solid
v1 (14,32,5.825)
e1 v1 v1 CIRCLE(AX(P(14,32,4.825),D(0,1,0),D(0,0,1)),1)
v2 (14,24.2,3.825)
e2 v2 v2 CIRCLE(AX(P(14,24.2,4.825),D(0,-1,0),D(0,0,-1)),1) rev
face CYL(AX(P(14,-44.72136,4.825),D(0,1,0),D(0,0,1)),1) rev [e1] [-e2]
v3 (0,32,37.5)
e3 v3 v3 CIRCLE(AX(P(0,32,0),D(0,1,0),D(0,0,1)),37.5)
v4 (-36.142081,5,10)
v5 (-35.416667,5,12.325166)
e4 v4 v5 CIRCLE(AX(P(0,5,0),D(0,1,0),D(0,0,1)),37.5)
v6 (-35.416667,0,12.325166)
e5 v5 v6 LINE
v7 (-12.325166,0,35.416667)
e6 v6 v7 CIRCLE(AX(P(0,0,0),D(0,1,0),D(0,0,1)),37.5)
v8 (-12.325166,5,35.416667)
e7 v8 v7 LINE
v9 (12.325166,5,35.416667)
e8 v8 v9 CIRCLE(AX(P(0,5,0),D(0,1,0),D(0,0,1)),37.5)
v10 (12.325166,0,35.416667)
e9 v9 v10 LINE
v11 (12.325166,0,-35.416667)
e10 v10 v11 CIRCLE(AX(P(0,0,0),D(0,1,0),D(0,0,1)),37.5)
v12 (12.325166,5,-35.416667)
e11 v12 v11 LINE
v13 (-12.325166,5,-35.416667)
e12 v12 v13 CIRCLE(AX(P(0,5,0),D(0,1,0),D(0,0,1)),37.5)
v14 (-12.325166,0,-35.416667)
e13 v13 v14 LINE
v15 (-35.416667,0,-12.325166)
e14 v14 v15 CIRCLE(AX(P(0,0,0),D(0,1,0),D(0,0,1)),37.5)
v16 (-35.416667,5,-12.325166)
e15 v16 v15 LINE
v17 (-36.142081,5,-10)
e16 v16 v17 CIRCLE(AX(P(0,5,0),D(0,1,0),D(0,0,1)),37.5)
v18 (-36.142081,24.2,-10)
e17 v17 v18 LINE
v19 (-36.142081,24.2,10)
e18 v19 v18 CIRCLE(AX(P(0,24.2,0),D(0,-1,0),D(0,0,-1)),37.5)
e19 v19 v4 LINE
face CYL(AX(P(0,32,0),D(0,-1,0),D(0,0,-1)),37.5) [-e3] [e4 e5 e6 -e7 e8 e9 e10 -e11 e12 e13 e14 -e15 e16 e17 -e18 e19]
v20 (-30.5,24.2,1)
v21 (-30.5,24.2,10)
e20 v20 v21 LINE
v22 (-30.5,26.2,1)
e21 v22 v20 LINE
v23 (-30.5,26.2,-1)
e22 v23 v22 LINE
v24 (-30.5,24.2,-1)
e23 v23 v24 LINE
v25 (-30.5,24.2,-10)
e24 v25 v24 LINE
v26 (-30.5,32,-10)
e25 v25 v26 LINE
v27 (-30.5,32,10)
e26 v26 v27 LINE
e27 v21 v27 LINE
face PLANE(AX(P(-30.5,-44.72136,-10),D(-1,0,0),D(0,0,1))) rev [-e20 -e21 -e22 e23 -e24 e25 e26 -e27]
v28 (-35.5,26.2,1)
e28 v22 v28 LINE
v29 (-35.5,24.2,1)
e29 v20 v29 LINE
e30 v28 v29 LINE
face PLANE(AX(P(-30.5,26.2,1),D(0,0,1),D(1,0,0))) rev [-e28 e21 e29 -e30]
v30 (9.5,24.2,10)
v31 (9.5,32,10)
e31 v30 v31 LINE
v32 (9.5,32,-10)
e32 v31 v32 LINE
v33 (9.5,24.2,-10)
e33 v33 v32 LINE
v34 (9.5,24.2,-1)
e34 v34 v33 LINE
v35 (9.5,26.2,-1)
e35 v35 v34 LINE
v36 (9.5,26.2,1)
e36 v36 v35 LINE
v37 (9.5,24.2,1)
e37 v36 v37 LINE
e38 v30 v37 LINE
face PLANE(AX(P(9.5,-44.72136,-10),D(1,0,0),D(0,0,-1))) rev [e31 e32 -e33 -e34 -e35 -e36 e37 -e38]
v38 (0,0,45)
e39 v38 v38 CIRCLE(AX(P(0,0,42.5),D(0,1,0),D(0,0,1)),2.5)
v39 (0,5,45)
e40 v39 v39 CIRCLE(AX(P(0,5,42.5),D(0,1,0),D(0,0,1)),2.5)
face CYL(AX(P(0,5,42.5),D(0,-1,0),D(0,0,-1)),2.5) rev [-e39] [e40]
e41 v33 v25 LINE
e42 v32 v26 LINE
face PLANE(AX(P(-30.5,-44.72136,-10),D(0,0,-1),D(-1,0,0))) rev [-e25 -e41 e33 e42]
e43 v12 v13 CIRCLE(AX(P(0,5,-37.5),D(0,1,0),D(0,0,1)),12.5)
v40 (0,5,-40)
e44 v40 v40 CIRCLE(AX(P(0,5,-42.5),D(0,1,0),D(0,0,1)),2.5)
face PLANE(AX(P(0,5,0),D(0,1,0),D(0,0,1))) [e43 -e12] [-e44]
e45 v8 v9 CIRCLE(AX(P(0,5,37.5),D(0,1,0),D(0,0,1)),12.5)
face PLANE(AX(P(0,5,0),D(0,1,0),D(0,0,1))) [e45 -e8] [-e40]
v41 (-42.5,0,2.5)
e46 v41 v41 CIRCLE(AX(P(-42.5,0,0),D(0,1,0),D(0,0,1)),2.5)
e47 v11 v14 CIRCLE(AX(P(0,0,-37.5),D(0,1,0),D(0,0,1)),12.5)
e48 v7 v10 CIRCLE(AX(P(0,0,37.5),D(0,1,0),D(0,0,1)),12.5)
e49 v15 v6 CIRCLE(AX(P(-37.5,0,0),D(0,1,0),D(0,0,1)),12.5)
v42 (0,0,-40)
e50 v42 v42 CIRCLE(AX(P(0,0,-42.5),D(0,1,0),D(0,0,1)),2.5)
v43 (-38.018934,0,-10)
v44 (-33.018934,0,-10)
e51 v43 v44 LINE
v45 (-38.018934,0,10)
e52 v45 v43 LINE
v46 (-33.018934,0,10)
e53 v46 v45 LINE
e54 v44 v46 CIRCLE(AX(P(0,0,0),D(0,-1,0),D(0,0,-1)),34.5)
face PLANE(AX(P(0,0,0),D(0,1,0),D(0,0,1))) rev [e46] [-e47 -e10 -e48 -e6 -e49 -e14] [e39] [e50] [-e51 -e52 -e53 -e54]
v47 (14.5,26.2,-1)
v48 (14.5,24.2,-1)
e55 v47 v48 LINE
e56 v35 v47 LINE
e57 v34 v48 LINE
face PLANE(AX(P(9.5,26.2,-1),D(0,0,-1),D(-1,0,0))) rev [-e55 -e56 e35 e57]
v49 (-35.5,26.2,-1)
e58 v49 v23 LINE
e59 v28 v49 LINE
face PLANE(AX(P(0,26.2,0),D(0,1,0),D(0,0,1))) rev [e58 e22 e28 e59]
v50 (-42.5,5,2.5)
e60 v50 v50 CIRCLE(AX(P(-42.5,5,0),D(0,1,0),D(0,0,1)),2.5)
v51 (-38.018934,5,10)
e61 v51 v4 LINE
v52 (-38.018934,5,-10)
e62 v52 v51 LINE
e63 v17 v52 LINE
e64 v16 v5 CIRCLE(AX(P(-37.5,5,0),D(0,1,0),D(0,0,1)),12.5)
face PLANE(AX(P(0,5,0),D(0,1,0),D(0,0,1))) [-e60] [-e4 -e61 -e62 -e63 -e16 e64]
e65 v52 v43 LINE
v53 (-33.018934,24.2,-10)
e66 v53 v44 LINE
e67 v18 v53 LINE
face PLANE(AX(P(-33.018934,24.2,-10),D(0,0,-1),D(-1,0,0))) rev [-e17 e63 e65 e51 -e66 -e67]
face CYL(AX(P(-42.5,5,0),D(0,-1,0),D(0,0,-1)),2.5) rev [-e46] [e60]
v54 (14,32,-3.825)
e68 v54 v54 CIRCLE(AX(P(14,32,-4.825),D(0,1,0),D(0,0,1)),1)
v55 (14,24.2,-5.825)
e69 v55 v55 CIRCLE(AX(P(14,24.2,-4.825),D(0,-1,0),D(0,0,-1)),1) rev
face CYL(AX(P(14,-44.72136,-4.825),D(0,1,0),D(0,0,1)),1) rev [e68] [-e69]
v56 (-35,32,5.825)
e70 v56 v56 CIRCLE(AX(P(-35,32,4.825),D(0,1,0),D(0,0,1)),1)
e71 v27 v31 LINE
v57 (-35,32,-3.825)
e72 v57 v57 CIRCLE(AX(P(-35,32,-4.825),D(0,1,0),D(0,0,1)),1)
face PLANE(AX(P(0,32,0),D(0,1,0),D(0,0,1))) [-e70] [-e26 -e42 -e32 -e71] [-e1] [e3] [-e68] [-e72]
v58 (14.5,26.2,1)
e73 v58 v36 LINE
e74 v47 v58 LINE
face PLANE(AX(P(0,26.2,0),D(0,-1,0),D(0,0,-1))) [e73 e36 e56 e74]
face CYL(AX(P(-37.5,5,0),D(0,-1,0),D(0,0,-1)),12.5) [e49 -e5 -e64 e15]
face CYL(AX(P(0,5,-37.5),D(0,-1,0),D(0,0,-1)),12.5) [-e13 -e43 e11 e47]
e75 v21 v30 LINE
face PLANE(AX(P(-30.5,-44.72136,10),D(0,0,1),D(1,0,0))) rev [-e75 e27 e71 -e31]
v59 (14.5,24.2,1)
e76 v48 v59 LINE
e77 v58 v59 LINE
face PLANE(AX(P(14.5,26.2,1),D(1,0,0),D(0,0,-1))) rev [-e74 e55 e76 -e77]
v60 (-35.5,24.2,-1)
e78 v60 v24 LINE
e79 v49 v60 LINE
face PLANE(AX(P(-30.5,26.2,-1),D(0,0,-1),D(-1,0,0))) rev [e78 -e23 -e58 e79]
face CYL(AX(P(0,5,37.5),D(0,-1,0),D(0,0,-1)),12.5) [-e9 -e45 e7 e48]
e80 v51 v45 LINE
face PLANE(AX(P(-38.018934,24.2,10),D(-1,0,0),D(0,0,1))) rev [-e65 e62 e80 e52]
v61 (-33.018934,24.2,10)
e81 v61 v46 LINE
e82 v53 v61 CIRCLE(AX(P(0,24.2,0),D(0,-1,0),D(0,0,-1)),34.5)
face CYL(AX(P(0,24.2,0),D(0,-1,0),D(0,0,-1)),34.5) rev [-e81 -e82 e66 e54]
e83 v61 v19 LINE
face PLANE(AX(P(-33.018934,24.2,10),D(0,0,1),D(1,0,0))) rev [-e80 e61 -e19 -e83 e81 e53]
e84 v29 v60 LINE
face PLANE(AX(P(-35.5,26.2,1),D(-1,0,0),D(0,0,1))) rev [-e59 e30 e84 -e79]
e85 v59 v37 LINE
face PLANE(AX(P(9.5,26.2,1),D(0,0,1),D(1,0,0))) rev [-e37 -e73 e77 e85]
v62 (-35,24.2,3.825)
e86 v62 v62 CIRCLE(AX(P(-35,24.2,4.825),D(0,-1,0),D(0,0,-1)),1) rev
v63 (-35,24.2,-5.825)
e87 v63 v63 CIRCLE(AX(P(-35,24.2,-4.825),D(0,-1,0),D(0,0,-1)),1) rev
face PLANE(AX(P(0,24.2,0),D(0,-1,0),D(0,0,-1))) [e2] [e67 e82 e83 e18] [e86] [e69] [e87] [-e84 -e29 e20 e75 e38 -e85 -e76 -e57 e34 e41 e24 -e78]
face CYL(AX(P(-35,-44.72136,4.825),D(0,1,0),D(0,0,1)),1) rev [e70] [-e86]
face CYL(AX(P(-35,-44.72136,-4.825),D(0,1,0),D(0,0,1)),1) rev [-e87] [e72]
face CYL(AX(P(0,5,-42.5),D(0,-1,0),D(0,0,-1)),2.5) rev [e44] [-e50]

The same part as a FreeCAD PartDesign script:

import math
import FreeCAD as App
import Part
import Sketcher
from FreeCAD import Vector

doc = App.newDocument("Part")
body = doc.addObject("PartDesign::Body", "Body")

# Sketch on XZ plane
sketch1 = body.newObject("Sketcher::SketchObject", "Sketch")
sketch1.AttachmentSupport = (doc.getObject("XZ_Plane"), [""])
sketch1.MapMode = "FlatFace"
sketch1.addGeometry([
    Part.ArcOfCircle(Part.Circle(Vector(0, 0, 0), Vector(0, 0, 1), 37.5), math.radians(161), math.radians(199)),  # 0
    Part.ArcOfCircle(Part.Circle(Vector(0, 0, 0), Vector(0, 0, 1), 37.5), math.radians(109), math.radians(161)),  # 1
    Part.ArcOfCircle(Part.Circle(Vector(0, 0, 0), Vector(0, 0, 1), 37.5), math.radians(71), math.radians(109)),  # 2
    Part.ArcOfCircle(Part.Circle(Vector(0, 0, 0), Vector(0, 0, 1), 37.5), math.radians(19), math.radians(71)),  # 3
    Part.ArcOfCircle(Part.Circle(Vector(0, 0, 0), Vector(0, 0, 1), 37.5), math.radians(0), math.radians(19.19)),  # 4
    Part.ArcOfCircle(Part.Circle(Vector(0, 0, 0), Vector(0, 0, 1), 37.5), math.radians(-19.19), math.radians(0)),  # 5
    Part.ArcOfCircle(Part.Circle(Vector(0, 0, 0), Vector(0, 0, 1), 37.5), math.radians(-71), math.radians(-19)),  # 6
    Part.ArcOfCircle(Part.Circle(Vector(0, 0, 0), Vector(0, 0, 1), 37.5), math.radians(-109), math.radians(-71)),  # 7
    Part.ArcOfCircle(Part.Circle(Vector(0, 0, 0), Vector(0, 0, 1), 37.5), math.radians(-161), math.radians(-109)),  # 8
    Part.Circle(Vector(0, 0, 0), Vector(0, 0, 1), 2.5),  # 9
], False)
sketch1.addConstraint([
    Sketcher.Constraint("Tangent", 0, 1, 1, 2),
    Sketcher.Constraint("Tangent", 1, 1, 2, 2),
    Sketcher.Constraint("Tangent", 2, 1, 3, 2),
    Sketcher.Constraint("Tangent", 3, 1, 4, 2),
    Sketcher.Constraint("Tangent", 4, 1, 5, 2),
    Sketcher.Constraint("Tangent", 5, 1, 6, 2),
    Sketcher.Constraint("Tangent", 6, 1, 7, 2),
    Sketcher.Constraint("Tangent", 7, 1, 8, 2),
    Sketcher.Constraint("Tangent", 8, 1, 0, 2),
    Sketcher.Constraint("Coincident", 0, 3, -1, 1),
    Sketcher.Constraint("Coincident", 2, 3, -1, 1),
    Sketcher.Constraint("Coincident", 4, 3, -1, 1),
    Sketcher.Constraint("Coincident", 6, 3, -1, 1),
    Sketcher.Constraint("Coincident", 9, 3, -1, 1),
    Sketcher.Constraint("PointOnObject", 4, 1, -1),
    Sketcher.Constraint("Horizontal", 1, 1, 2, 1),
    Sketcher.Constraint("Horizontal", 0, 1, 3, 1),
    Sketcher.Constraint("Horizontal", 6, 1, 7, 1),
    Sketcher.Constraint("Horizontal", 5, 1, 8, 1),
    Sketcher.Constraint("Vertical", 3, 1, 5, 1),
    Sketcher.Constraint("Vertical", 2, 1, 6, 1),
    Sketcher.Constraint("Diameter", 9, 5.0),
    Sketcher.Constraint("Radius", 0, 37.5),
    Sketcher.Constraint("DistanceX", 0, 1, 1, 1, 23.0915),
    Sketcher.Constraint("DistanceY", 0, 1, 1, 1, 23.0915),
])
pad1 = body.newObject("PartDesign::Pad", "Pad")
pad1.Profile = sketch1
pad1.Length = 32
pad1.Reversed = True

# Sketch on XZ plane
sketch2 = body.newObject("Sketcher::SketchObject", "Sketch001")
sketch2.AttachmentSupport = (doc.getObject("XZ_Plane"), [""])
sketch2.MapMode = "FlatFace"
sketch2.addGeometry([
    Part.ArcOfCircle(Part.Circle(Vector(-37.5, 0, 0), Vector(0, 0, 1), 12.5), math.radians(80), math.radians(280)),  # 0
    Part.ArcOfCircle(Part.Circle(Vector(0, 0, 0), Vector(0, 0, 1), 37.5), math.radians(161), math.radians(199)),  # 1
    Part.Circle(Vector(-42.5, 0, 0), Vector(0, 0, 1), 2.5),  # 2
    Part.ArcOfCircle(Part.Circle(Vector(0, 0, 0), Vector(0, 0, 1), 37.5), math.radians(71), math.radians(109)),  # 3
    Part.ArcOfCircle(Part.Circle(Vector(0, 37.5, 0), Vector(0, 0, 1), 12.5), math.radians(-10), math.radians(190)),  # 4
    Part.Circle(Vector(0, 42.5, 0), Vector(0, 0, 1), 2.5),  # 5
    Part.ArcOfCircle(Part.Circle(Vector(0, -37.5, 0), Vector(0, 0, 1), 12.5), math.radians(170), math.radians(370)),  # 6
    Part.ArcOfCircle(Part.Circle(Vector(0, 0, 0), Vector(0, 0, 1), 37.5), math.radians(-109), math.radians(-71)),  # 7
    Part.Circle(Vector(0, -42.5, 0), Vector(0, 0, 1), 2.5),  # 8
], False)
sketch2.addConstraint([
    Sketcher.Constraint("Coincident", 0, 1, 1, 1),
    Sketcher.Constraint("Coincident", 1, 2, 0, 2),
    Sketcher.Constraint("Coincident", 3, 1, 4, 1),
    Sketcher.Constraint("Coincident", 4, 2, 3, 2),
    Sketcher.Constraint("Coincident", 6, 1, 7, 1),
    Sketcher.Constraint("Coincident", 7, 2, 6, 2),
    Sketcher.Constraint("Coincident", 1, 3, -1, 1),
    Sketcher.Constraint("Coincident", 3, 3, -1, 1),
    Sketcher.Constraint("Coincident", 7, 3, -1, 1),
    Sketcher.Constraint("Equal", 1, 3),
    Sketcher.Constraint("Equal", 0, 4),
    Sketcher.Constraint("Equal", 2, 5),
    Sketcher.Constraint("Equal", 4, 6),
    Sketcher.Constraint("Equal", 3, 7),
    Sketcher.Constraint("Equal", 5, 8),
    Sketcher.Constraint("Symmetric", 4, 3, 6, 3, -1, 1),
    Sketcher.Constraint("Symmetric", 5, 3, 8, 3, -1, 1),
    Sketcher.Constraint("PointOnObject", 0, 3, -1),
    Sketcher.Constraint("PointOnObject", 2, 3, -1),
    Sketcher.Constraint("PointOnObject", 4, 3, -2),
    Sketcher.Constraint("PointOnObject", 5, 3, -2),
    Sketcher.Constraint("Diameter", 2, 5.0),
    Sketcher.Constraint("Radius", 0, 12.5),
    Sketcher.Constraint("Radius", 1, 37.5),
    Sketcher.Constraint("DistanceX", 2, 3, 0, 3, 5.0),
    Sketcher.Constraint("DistanceY", 4, 3, 5, 3, 5.0),
    Sketcher.Constraint("DistanceY", 6, 3, 4, 3, 75.0),
    Sketcher.Constraint("DistanceX", 0, 3, -1, 1, 37.5),
])
pad2 = body.newObject("PartDesign::Pad", "Pad001")
pad2.Profile = sketch2
pad2.Length = 5
pad2.Reversed = True

# Sketch on XZ plane
sketch3 = body.newObject("Sketcher::SketchObject", "Sketch002")
sketch3.AttachmentSupport = (doc.getObject("XZ_Plane"), [""])
sketch3.MapMode = "FlatFace"
sketch3.addGeometry([
    Part.Circle(Vector(-35, -4.8, 0), Vector(0, 0, 1), 1),  # 0
    Part.Circle(Vector(-35, 4.8, 0), Vector(0, 0, 1), 1),  # 1
    Part.Circle(Vector(14, -4.8, 0), Vector(0, 0, 1), 1),  # 2
    Part.Circle(Vector(14, 4.8, 0), Vector(0, 0, 1), 1),  # 3
    Part.LineSegment(Vector(-30.5, -10, 0), Vector(-30.5, 10, 0)),  # 4
    Part.LineSegment(Vector(-30.5, 10, 0), Vector(9.5, 10, 0)),  # 5
    Part.LineSegment(Vector(9.5, 10, 0), Vector(9.5, -10, 0)),  # 6
    Part.LineSegment(Vector(9.5, -10, 0), Vector(-30.5, -10, 0)),  # 7
    Part.Circle(Vector(0, 0, 0), Vector(0, 0, 1), 2.5),  # 8
], False)
sketch3.addConstraint([
    Sketcher.Constraint("Coincident", 4, 2, 5, 1),
    Sketcher.Constraint("Coincident", 5, 2, 6, 1),
    Sketcher.Constraint("Coincident", 6, 2, 7, 1),
    Sketcher.Constraint("Coincident", 7, 2, 4, 1),
    Sketcher.Constraint("Vertical", 4),
    Sketcher.Constraint("Horizontal", 5),
    Sketcher.Constraint("Vertical", 6),
    Sketcher.Constraint("Horizontal", 7),
    Sketcher.Constraint("Coincident", 8, 3, -1, 1),
    Sketcher.Constraint("Equal", 0, 1),
    Sketcher.Constraint("Equal", 1, 2),
    Sketcher.Constraint("Equal", 2, 3),
    Sketcher.Constraint("Symmetric", 0, 3, 1, 3, -1),
    Sketcher.Constraint("Symmetric", 2, 3, 3, 3, -1),
    Sketcher.Constraint("Horizontal", 0, 3, 2, 3),
    Sketcher.Constraint("Diameter", 0, 2.0),
    Sketcher.Constraint("Diameter", 8, 5.0),
    Sketcher.Constraint("DistanceX", 5, 1, 5, 2, 40.0),
    Sketcher.Constraint("DistanceY", 4, 1, 4, 2, 20.0),
    Sketcher.Constraint("DistanceX", 0, 3, -1, 1, 35.0),
    Sketcher.Constraint("DistanceX", -1, 1, 2, 3, 14.0),
    Sketcher.Constraint("DistanceY", -1, 1, 4, 2, 10.0),
    Sketcher.Constraint("DistanceX", 4, 2, -1, 1, 30.5),
    Sketcher.Constraint("DistanceY", 0, 3, 1, 3, 9.65),
])
pocket1 = body.newObject("PartDesign::Pocket", "Pocket")
pocket1.Profile = sketch3
pocket1.Length = 32

# Sketch on XZ plane
sketch4 = body.newObject("Sketcher::SketchObject", "Sketch003")
sketch4.AttachmentSupport = (doc.getObject("XZ_Plane"), [""])
sketch4.MapMode = "FlatFace"
sketch4.addGeometry([
    Part.LineSegment(Vector(-33, 10, 0), Vector(-38, 10, 0)),
    Part.LineSegment(Vector(-38, 10, 0), Vector(-38, -10, 0)),
    Part.LineSegment(Vector(-38, -10, 0), Vector(-33, -10, 0)),
    Part.ArcOfCircle(Part.Circle(Vector(0, 0, 0), Vector(0, 0, 1), 34), math.radians(-163), math.radians(163)),
], False)
sketch4.addConstraint([
    Sketcher.Constraint("Coincident", 0, 2, 1, 1),
    Sketcher.Constraint("Coincident", 1, 2, 2, 1),
    Sketcher.Constraint("Coincident", 2, 2, 3, 1),
    Sketcher.Constraint("Coincident", 3, 2, 0, 1),
    Sketcher.Constraint("Horizontal", 0),
    Sketcher.Constraint("Vertical", 1),
    Sketcher.Constraint("Horizontal", 2),
    Sketcher.Constraint("Coincident", 3, 3, -1, 1),
    Sketcher.Constraint("Vertical", 2, 2, 3, 2),
    Sketcher.Constraint("Radius", 3, 34.5),
    Sketcher.Constraint("DistanceX", 0, 2, 0, 1, 5.0),
    Sketcher.Constraint("DistanceY", 1, 2, 1, 1, 20.0),
])
pocket2 = body.newObject("PartDesign::Pocket", "Pocket001")
pocket2.Profile = sketch4
pocket2.Length = 24.2

# Sketch on XZ plane
sketch5 = body.newObject("Sketcher::SketchObject", "Sketch004")
sketch5.AttachmentSupport = (doc.getObject("XZ_Plane"), [""])
sketch5.MapMode = "FlatFace"
sketch5.AttachmentOffset = App.Placement(Vector(0, 0, -24.2), App.Rotation())
sketch5.addGeometry([
    Part.LineSegment(Vector(14.5, -1, 0), Vector(14.5, 1, 0)),  # 0
    Part.LineSegment(Vector(14.5, 1, 0), Vector(9.5, 1, 0)),  # 1
    Part.LineSegment(Vector(9.5, 1, 0), Vector(9.5, -1, 0)),  # 2
    Part.LineSegment(Vector(9.5, -1, 0), Vector(14.5, -1, 0)),  # 3
    Part.LineSegment(Vector(-30.5, -1, 0), Vector(-30.5, 1, 0)),  # 4
    Part.LineSegment(Vector(-30.5, 1, 0), Vector(-35.5, 1, 0)),  # 5
    Part.LineSegment(Vector(-35.5, 1, 0), Vector(-35.5, -1, 0)),  # 6
    Part.LineSegment(Vector(-35.5, -1, 0), Vector(-30.5, -1, 0)),  # 7
], False)
sketch5.addConstraint([
    Sketcher.Constraint("Coincident", 0, 2, 1, 1),
    Sketcher.Constraint("Coincident", 1, 2, 2, 1),
    Sketcher.Constraint("Coincident", 2, 2, 3, 1),
    Sketcher.Constraint("Coincident", 3, 2, 0, 1),
    Sketcher.Constraint("Coincident", 4, 2, 5, 1),
    Sketcher.Constraint("Coincident", 5, 2, 6, 1),
    Sketcher.Constraint("Coincident", 6, 2, 7, 1),
    Sketcher.Constraint("Coincident", 7, 2, 4, 1),
    Sketcher.Constraint("Vertical", 0),
    Sketcher.Constraint("Horizontal", 1),
    Sketcher.Constraint("Vertical", 2),
    Sketcher.Constraint("Horizontal", 3),
    Sketcher.Constraint("Vertical", 4),
    Sketcher.Constraint("Horizontal", 5),
    Sketcher.Constraint("Vertical", 6),
    Sketcher.Constraint("Horizontal", 7),
    Sketcher.Constraint("Horizontal", 1, 2, 4, 2),
    Sketcher.Constraint("Horizontal", 3, 2, 6, 2),
    Sketcher.Constraint("Equal", 3, 5),
    Sketcher.Constraint("DistanceX", 1, 2, 1, 1, 5.0),
    Sketcher.Constraint("DistanceY", 0, 1, 0, 2, 2.0),
    Sketcher.Constraint("DistanceY", -1, 1, 0, 2, 1.0),
    Sketcher.Constraint("DistanceX", 4, 2, 1, 2, 40.0),
    Sketcher.Constraint("DistanceX", -1, 1, 0, 2, 14.5),
])
pocket3 = body.newObject("PartDesign::Pocket", "Pocket002")
pocket3.Profile = sketch5
pocket3.Length = 2

doc.recompute()
